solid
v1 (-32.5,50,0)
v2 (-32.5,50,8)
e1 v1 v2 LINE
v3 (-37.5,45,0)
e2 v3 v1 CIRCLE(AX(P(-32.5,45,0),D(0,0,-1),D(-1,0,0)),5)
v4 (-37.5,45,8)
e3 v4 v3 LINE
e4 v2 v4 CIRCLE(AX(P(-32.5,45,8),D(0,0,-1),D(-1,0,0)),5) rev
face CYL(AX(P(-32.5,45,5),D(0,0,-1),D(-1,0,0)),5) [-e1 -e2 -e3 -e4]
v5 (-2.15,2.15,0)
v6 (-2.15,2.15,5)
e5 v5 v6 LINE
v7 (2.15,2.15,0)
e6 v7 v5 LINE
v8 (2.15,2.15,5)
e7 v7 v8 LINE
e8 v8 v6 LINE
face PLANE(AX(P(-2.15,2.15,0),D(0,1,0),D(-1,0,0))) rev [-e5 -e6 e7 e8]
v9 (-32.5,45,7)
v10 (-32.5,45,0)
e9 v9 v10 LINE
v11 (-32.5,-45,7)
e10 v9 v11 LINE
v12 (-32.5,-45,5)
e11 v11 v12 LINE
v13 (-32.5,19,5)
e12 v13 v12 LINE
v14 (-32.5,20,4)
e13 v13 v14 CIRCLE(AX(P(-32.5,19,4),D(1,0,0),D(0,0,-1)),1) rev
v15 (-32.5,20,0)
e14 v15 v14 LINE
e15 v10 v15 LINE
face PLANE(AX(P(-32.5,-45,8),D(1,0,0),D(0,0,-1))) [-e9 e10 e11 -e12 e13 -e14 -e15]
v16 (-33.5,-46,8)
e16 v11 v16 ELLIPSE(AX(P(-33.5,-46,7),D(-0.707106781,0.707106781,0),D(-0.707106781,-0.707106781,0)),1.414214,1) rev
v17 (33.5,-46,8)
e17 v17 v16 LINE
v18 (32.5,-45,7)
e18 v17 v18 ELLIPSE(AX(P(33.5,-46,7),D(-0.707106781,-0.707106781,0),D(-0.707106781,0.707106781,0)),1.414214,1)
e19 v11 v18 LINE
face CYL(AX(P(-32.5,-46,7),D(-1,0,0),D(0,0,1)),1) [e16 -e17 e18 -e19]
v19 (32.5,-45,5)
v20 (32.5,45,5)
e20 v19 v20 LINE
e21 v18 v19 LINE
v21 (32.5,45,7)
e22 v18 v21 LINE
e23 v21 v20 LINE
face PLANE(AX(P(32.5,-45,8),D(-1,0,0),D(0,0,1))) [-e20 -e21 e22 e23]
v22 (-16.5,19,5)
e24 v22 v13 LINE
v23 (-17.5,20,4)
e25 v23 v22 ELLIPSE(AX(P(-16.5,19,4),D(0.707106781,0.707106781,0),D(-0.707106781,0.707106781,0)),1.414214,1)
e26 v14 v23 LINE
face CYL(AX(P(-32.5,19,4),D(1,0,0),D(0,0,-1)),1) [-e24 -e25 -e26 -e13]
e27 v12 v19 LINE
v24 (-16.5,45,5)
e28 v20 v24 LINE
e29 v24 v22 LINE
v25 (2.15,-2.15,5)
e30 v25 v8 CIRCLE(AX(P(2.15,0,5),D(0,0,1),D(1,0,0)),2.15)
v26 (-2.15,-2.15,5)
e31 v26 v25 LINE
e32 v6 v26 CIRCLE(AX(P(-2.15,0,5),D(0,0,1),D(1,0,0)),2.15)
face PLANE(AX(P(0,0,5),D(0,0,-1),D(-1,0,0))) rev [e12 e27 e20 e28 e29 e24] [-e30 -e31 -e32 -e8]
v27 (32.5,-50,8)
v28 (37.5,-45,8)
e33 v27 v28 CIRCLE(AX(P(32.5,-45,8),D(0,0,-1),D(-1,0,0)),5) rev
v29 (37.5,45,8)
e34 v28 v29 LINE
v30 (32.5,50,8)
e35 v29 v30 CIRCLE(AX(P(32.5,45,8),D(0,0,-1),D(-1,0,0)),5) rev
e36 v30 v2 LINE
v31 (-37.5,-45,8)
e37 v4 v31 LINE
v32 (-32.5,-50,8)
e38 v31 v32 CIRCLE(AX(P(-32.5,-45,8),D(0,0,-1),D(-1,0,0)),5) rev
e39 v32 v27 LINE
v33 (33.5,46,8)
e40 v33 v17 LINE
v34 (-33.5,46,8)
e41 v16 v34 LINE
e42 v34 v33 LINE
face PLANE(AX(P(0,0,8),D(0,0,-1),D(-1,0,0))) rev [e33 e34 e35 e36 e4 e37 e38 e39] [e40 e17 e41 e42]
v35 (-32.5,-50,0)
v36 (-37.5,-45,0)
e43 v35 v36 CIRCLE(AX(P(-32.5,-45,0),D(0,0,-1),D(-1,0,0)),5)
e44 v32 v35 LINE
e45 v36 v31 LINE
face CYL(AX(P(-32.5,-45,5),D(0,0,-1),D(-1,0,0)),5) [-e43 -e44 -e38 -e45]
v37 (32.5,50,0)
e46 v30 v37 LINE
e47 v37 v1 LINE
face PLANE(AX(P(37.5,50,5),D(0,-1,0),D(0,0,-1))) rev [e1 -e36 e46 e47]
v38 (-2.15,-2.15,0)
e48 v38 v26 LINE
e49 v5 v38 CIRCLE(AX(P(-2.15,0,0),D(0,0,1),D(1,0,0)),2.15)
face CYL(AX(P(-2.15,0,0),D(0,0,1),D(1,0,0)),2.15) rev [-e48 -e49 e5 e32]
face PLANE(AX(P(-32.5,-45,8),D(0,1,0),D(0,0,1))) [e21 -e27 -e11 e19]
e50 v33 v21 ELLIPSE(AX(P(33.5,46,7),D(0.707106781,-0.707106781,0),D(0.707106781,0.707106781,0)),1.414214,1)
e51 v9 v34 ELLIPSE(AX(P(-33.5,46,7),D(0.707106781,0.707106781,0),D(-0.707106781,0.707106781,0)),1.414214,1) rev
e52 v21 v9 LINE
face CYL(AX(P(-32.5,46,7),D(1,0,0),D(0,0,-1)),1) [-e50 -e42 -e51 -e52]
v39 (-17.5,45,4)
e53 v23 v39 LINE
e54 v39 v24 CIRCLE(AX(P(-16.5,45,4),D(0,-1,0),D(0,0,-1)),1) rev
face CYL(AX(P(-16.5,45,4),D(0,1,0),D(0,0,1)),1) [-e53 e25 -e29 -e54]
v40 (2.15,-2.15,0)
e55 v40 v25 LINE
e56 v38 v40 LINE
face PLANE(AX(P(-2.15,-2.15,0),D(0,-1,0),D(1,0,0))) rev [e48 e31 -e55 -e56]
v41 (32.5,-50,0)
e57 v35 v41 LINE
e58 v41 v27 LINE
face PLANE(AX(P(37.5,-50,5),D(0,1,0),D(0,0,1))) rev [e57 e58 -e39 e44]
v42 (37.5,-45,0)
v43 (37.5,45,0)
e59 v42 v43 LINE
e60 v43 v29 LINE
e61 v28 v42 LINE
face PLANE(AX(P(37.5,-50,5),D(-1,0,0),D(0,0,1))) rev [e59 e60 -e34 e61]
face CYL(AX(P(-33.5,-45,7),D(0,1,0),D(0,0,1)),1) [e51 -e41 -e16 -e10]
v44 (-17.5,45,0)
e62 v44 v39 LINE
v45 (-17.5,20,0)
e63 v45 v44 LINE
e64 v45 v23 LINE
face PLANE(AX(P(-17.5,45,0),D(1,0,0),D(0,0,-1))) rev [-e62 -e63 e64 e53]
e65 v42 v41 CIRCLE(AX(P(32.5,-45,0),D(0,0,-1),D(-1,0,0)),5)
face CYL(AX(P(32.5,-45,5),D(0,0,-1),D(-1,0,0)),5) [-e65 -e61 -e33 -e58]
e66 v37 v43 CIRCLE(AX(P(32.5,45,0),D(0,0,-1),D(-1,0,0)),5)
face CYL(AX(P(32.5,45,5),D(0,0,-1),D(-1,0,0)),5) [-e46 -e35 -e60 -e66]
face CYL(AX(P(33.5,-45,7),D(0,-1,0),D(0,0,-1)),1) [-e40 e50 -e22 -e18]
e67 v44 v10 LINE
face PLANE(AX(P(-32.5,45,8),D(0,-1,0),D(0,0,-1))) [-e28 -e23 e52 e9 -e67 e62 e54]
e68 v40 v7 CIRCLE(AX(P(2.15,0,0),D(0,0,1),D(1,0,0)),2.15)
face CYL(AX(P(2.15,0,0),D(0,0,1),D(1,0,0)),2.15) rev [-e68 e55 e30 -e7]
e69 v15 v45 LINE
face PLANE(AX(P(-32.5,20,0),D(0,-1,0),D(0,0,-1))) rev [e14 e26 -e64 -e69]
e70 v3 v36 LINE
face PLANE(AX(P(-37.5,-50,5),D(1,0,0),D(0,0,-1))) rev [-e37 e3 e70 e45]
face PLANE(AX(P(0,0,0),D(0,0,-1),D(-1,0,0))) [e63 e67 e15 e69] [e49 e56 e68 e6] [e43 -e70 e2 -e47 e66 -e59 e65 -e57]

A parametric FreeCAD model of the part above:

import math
import FreeCAD as App
import Part
import Sketcher
from FreeCAD import Vector


def edges_at(feature, points):
    """Names of the edges that pass closest to the given points."""
    edges = feature.Shape.Edges
    near = lambda p: min(range(len(edges)), key=lambda i: edges[i].distToShape(Part.Vertex(*p))[0])
    return sorted({f"Edge{near(p) + 1}" for p in points})


def add_polygon(sketch, points):
    """Adds a closed chain of lines whose ends are joined by coincident constraints."""
    first, n = sketch.GeometryCount, len(points)
    for a, b in zip(points, points[1:] + points[:1]):
        sketch.addGeometry(Part.LineSegment(App.Vector(*a, 0), App.Vector(*b, 0)), False)
    for i in range(n):
        sketch.addConstraint(Sketcher.Constraint("Coincident", first + i, 2, first + (i + 1) % n, 1))

doc = App.newDocument("Part")
body = doc.addObject("PartDesign::Body", "Body")

sketch1 = body.newObject("Sketcher::SketchObject", "Sketch")
sketch1.AttachmentSupport = (doc.getObject("XY_Plane"), [""])
sketch1.MapMode = "FlatFace"
add_polygon(sketch1, [(-37.5, -50), (37.5, -50), (37.5, 50), (-37.5, 50)])
sketch1.addConstraint([
    Sketcher.Constraint("Horizontal", 0),
    Sketcher.Constraint("Vertical", 1),
    Sketcher.Constraint("Horizontal", 2),
    Sketcher.Constraint("Vertical", 3),
    Sketcher.Constraint("Symmetric", 0, 2, 2, 2, -1, 1),
    Sketcher.Constraint("DistanceX", 0, 1, 0, 2, 75.0),
    Sketcher.Constraint("DistanceY", 1, 1, 1, 2, 100.0),
])
pad1 = body.newObject("PartDesign::Pad", "Pad")
pad1.Profile = sketch1
pad1.Length = 5

sketch2 = body.newObject("Sketcher::SketchObject", "Sketch001")
sketch2.AttachmentSupport = (doc.getObject("XY_Plane"), [""])
sketch2.MapMode = "FlatFace"
sketch2.AttachmentOffset = App.Placement(Vector(0, 0, 5), App.Rotation())
add_polygon(sketch2, [(-37.5, 50), (-37.5, -50), (37.5, -50), (37.5, 50)])
add_polygon(sketch2, [(32.5, -45), (-32.5, -45), (-32.5, 45), (32.5, 45)])
sketch2.addConstraint([
    Sketcher.Constraint("Vertical", 0),
    Sketcher.Constraint("Horizontal", 1),
    Sketcher.Constraint("Vertical", 2),
    Sketcher.Constraint("Horizontal", 3),
    Sketcher.Constraint("Horizontal", 4),
    Sketcher.Constraint("Vertical", 5),
    Sketcher.Constraint("Horizontal", 6),
    Sketcher.Constraint("Vertical", 7),
    Sketcher.Constraint("Symmetric", 0, 2, 2, 2, -1, 1),
    Sketcher.Constraint("Symmetric", 4, 2, 6, 2, -1, 1),
    Sketcher.Constraint("DistanceX", 1, 1, 1, 2, 75.0),
    Sketcher.Constraint("DistanceX", 4, 2, 4, 1, 65.0),
    Sketcher.Constraint("DistanceY", 0, 2, 0, 1, 100.0),
    Sketcher.Constraint("DistanceY", 5, 1, 5, 2, 90.0),
])
pad2 = body.newObject("PartDesign::Pad", "Pad001")
pad2.Profile = sketch2
pad2.Length = 3

sketch3 = body.newObject("Sketcher::SketchObject", "Sketch002")
sketch3.AttachmentSupport = (doc.getObject("XY_Plane"), [""])
sketch3.MapMode = "FlatFace"
sketch3.AttachmentOffset = App.Placement(Vector(0, 0, 5), App.Rotation())
add_polygon(sketch3, [(-32.5, 45), (-32.5, 20), (-17.5, 20), (-17.5, 45)])
sketch3.addGeometry(Part.LineSegment(Vector(2.15, 2.15, 0), Vector(-2.15, 2.15, 0)), False)
sketch3.addGeometry(Part.ArcOfCircle(Part.Circle(Vector(-2.15, 0, 0), Vector(0, 0, 1), 2.15), math.radians(90), math.radians(270)), False)
sketch3.addGeometry(Part.LineSegment(Vector(-2.15, -2.15, 0), Vector(2.15, -2.15, 0)), False)
sketch3.addGeometry(Part.ArcOfCircle(Part.Circle(Vector(2.15, 0, 0), Vector(0, 0, 1), 2.15), math.radians(-90), math.radians(90)), False)
sketch3.addConstraint([
    Sketcher.Constraint("Tangent", 4, 2, 5, 1),
    Sketcher.Constraint("Tangent", 5, 2, 6, 1),
    Sketcher.Constraint("Tangent", 6, 2, 7, 1),
    Sketcher.Constraint("Tangent", 7, 2, 4, 1),
    Sketcher.Constraint("Vertical", 0),
    Sketcher.Constraint("Horizontal", 1),
    Sketcher.Constraint("Vertical", 2),
    Sketcher.Constraint("Horizontal", 3),
    Sketcher.Constraint("Horizontal", 4),
    Sketcher.Constraint("Horizontal", 6),
    Sketcher.Constraint("Symmetric", 5, 3, 7, 3, -1, 1),
    Sketcher.Constraint("DistanceX", 1, 1, 1, 2, 15.0),
    Sketcher.Constraint("DistanceY", 0, 2, 0, 1, 25.0),
    Sketcher.Constraint("Radius", 5, 2.15),
    Sketcher.Constraint("DistanceX", 4, 2, 4, 1, 4.3),
    Sketcher.Constraint("DistanceY", -1, 1, 0, 2, 20.0),
    Sketcher.Constraint("DistanceX", 0, 2, -1, 1, 32.5),
])
pocket1 = body.newObject("PartDesign::Pocket", "Pocket")
pocket1.Profile = sketch3
pocket1.Type = "ThroughAll"
doc.recompute()

fillet = body.newObject("PartDesign::Fillet", "Fillet")
fillet.Base = (pocket1, edges_at(pocket1, [
    (37.5, 50, 4),
    (37.5, -50, 4),
    (-37.5, -50, 4),
    (-37.5, 50, 4),
]))
fillet.Radius = 5
doc.recompute()

fillet2 = body.newObject("PartDesign::Fillet", "Fillet001")
fillet2.Base = (fillet, edges_at(fillet, [
    (32.5, 0, 8),
    (0, 45, 8),
    (-32.5, 0, 8),
    (0, -45, 8),
    (-25, 20, 5),
    (-17.5, 32.5, 5),
]))
fillet2.Radius = 1

doc.recompute()
